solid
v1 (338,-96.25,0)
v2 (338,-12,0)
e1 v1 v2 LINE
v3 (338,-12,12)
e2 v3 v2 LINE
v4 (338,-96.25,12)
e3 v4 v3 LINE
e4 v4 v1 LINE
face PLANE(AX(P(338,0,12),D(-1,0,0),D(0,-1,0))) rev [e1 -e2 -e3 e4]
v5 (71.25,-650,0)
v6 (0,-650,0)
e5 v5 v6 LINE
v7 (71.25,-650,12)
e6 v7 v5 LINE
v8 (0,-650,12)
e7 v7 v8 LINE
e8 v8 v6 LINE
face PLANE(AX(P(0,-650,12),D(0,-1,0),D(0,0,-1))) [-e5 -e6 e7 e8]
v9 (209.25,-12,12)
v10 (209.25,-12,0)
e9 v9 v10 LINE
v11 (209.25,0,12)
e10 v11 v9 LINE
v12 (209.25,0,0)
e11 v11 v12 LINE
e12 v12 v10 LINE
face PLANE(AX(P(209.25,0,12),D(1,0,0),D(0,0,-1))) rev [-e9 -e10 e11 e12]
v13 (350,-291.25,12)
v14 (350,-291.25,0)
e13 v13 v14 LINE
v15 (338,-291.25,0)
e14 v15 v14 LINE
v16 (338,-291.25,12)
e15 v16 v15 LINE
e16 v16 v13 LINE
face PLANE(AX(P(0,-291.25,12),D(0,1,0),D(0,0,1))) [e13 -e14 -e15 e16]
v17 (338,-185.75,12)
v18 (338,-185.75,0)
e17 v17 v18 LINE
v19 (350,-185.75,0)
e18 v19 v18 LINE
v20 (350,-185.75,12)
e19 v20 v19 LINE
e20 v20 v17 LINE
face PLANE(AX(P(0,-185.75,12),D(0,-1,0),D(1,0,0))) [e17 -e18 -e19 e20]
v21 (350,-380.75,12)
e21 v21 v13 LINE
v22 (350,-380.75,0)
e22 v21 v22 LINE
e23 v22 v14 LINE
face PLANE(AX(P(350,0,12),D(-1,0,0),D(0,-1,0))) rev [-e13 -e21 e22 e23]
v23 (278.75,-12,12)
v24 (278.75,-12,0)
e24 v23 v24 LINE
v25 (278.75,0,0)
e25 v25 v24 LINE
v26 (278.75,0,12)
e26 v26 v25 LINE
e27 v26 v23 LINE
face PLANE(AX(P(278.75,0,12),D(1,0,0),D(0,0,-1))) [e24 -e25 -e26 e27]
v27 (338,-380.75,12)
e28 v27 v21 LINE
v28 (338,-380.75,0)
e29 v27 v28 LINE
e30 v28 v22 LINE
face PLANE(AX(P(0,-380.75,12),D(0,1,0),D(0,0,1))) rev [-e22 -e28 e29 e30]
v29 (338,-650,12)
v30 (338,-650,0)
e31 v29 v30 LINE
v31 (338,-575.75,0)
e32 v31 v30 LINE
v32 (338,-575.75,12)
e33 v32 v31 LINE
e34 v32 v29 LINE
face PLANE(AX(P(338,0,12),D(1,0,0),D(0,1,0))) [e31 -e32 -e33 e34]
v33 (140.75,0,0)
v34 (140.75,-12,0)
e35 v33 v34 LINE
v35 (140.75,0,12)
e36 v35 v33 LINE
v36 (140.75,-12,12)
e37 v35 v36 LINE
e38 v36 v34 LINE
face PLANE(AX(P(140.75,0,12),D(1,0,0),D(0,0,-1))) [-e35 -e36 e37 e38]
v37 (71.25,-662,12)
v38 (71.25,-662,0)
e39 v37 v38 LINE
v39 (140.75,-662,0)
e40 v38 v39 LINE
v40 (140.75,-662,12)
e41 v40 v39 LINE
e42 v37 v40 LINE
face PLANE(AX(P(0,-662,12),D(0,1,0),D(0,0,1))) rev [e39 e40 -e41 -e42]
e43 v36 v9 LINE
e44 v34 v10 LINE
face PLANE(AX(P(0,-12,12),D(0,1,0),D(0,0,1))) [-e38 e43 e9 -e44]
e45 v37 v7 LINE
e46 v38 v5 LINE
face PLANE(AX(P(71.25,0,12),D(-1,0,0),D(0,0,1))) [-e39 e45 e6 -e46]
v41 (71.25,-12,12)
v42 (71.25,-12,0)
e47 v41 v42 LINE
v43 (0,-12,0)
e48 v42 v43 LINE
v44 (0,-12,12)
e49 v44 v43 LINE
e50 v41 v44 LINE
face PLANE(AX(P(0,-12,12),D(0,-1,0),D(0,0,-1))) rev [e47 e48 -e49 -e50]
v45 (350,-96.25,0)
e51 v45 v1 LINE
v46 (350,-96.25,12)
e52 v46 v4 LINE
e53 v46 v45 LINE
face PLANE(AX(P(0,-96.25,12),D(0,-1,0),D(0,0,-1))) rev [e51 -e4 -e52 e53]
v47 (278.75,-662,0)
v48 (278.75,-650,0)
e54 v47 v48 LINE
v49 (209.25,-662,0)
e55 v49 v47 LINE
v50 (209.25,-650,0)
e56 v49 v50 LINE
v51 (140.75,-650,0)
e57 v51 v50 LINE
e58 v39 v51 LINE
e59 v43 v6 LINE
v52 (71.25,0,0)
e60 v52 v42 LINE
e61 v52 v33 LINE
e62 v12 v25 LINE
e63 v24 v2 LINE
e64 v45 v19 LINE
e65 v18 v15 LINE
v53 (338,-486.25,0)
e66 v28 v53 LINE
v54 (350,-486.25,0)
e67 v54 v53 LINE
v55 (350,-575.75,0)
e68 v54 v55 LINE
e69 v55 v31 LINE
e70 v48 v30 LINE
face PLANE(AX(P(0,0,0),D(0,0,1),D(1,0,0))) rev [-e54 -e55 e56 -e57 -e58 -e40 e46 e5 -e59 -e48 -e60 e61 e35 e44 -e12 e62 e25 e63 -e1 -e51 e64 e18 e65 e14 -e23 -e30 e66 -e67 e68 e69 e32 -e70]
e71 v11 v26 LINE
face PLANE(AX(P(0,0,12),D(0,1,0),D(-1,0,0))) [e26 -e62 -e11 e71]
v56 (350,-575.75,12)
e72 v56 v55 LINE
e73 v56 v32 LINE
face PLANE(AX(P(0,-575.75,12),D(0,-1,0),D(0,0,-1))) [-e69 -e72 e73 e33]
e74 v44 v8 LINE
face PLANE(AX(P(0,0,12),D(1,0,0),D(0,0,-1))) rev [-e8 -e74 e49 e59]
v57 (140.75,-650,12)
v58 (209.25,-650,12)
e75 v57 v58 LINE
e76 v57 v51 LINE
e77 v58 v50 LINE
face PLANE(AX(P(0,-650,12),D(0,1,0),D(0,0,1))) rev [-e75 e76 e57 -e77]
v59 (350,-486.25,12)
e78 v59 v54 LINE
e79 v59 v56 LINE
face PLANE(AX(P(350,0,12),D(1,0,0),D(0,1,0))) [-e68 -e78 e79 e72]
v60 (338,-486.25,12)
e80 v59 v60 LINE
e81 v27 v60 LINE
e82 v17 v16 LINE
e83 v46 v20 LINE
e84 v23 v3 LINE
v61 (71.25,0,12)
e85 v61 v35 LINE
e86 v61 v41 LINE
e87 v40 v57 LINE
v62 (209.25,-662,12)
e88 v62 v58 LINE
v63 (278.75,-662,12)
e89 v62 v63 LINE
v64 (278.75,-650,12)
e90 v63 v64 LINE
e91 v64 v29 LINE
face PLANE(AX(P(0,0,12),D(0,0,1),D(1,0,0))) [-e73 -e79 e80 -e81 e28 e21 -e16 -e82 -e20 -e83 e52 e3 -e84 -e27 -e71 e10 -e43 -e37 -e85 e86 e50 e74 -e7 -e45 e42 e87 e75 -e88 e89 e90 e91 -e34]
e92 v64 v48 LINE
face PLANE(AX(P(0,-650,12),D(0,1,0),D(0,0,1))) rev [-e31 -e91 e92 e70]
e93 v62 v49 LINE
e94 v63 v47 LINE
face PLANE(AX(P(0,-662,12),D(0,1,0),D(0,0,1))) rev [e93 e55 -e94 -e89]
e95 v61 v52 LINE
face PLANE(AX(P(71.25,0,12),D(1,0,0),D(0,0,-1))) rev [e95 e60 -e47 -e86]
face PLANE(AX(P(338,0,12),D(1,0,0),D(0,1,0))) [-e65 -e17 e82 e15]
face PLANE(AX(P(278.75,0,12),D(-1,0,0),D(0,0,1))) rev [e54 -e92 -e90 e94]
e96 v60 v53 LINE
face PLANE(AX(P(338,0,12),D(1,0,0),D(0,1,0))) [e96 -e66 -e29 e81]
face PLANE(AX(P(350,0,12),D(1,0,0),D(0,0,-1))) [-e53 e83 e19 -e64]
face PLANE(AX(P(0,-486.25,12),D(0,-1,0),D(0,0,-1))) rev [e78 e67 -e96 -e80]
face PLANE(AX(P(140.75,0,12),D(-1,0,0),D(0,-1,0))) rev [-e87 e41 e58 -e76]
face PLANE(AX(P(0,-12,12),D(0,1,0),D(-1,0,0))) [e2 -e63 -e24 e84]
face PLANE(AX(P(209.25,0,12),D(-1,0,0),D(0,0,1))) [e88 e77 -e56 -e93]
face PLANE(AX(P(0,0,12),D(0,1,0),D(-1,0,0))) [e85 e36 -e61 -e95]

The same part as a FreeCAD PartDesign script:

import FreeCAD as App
import Part
import Sketcher

V = App.Vector
Q = App.Units.Quantity

doc = App.newDocument("Part")
params = doc.addObject("Spreadsheet::Sheet", "Params")
for row, (alias, value) in enumerate([
    ("sketch1_width", "12 mm"),
    ("sketch1_height", "638 mm"),
    ("sketch1_width2", "69.5 mm"),
    ("sketch1_width3", "68.5 mm"),
    ("sketch1_height2", "89.5 mm"),
    ("pad1_length", "12 mm"),
], start=1):
    params.set(f"A{row}", alias)
    params.set(f"B{row}", "=" + value)
    params.setAlias(f"B{row}", alias)

body = doc.addObject("PartDesign::Body", "Body")

sketch1 = body.newObject("Sketcher::SketchObject", "Sketch")
sketch1.AttachmentSupport = (doc.getObject("XY_Plane"), [""])
sketch1.MapMode = "FlatFace"
sketch1.addGeometry(Part.LineSegment(V(141, 0, 0), V(71, 0, 0)), False)
sketch1.addGeometry(Part.LineSegment(V(71, 0, 0), V(71, -12, 0)), False)
sketch1.addGeometry(Part.LineSegment(V(71, -12, 0), V(0, -12, 0)), False)
sketch1.addGeometry(Part.LineSegment(V(0, -12, 0), V(0, -650, 0)), False)
sketch1.addGeometry(Part.LineSegment(V(0, -650, 0), V(71, -650, 0)), False)
sketch1.addGeometry(Part.LineSegment(V(71, -650, 0), V(71, -662, 0)), False)
sketch1.addGeometry(Part.LineSegment(V(71, -662, 0), V(141, -662, 0)), False)
sketch1.addGeometry(Part.LineSegment(V(141, -662, 0), V(141, -650, 0)), False)
sketch1.addGeometry(Part.LineSegment(V(141, -650, 0), V(209, -650, 0)), False)
sketch1.addGeometry(Part.LineSegment(V(209, -650, 0), V(209, -662, 0)), False)
sketch1.addGeometry(Part.LineSegment(V(209, -662, 0), V(279, -662, 0)), False)
sketch1.addGeometry(Part.LineSegment(V(279, -662, 0), V(279, -650, 0)), False)
sketch1.addGeometry(Part.LineSegment(V(279, -650, 0), V(338, -650, 0)), False)
sketch1.addGeometry(Part.LineSegment(V(338, -650, 0), V(338, -576, 0)), False)
sketch1.addGeometry(Part.LineSegment(V(338, -576, 0), V(350, -576, 0)), False)
sketch1.addGeometry(Part.LineSegment(V(350, -576, 0), V(350, -486, 0)), False)
sketch1.addGeometry(Part.LineSegment(V(350, -486, 0), V(338, -486, 0)), False)
sketch1.addGeometry(Part.LineSegment(V(338, -486, 0), V(338, -381, 0)), False)
sketch1.addGeometry(Part.LineSegment(V(338, -381, 0), V(350, -381, 0)), False)
sketch1.addGeometry(Part.LineSegment(V(350, -381, 0), V(350, -291, 0)), False)
sketch1.addGeometry(Part.LineSegment(V(350, -291, 0), V(338, -291, 0)), False)
sketch1.addGeometry(Part.LineSegment(V(338, -291, 0), V(338, -186, 0)), False)
sketch1.addGeometry(Part.LineSegment(V(338, -186, 0), V(350, -186, 0)), False)
sketch1.addGeometry(Part.LineSegment(V(350, -186, 0), V(350, -96, 0)), False)
sketch1.addGeometry(Part.LineSegment(V(350, -96, 0), V(338, -96, 0)), False)
sketch1.addGeometry(Part.LineSegment(V(338, -96, 0), V(338, -12, 0)), False)
sketch1.addGeometry(Part.LineSegment(V(338, -12, 0), V(279, -12, 0)), False)
sketch1.addGeometry(Part.LineSegment(V(279, -12, 0), V(279, 0, 0)), False)
sketch1.addGeometry(Part.LineSegment(V(279, 0, 0), V(209, 0, 0)), False)
sketch1.addGeometry(Part.LineSegment(V(209, 0, 0), V(209, -12, 0)), False)
sketch1.addGeometry(Part.LineSegment(V(209, -12, 0), V(141, -12, 0)), False)
sketch1.addGeometry(Part.LineSegment(V(141, -12, 0), V(141, 0, 0)), False)
sketch1.addConstraint(Sketcher.Constraint("Coincident", 0, 2, 1, 1))
sketch1.addConstraint(Sketcher.Constraint("Coincident", 1, 2, 2, 1))
sketch1.addConstraint(Sketcher.Constraint("Coincident", 2, 2, 3, 1))
sketch1.addConstraint(Sketcher.Constraint("Coincident", 3, 2, 4, 1))
sketch1.addConstraint(Sketcher.Constraint("Coincident", 4, 2, 5, 1))
sketch1.addConstraint(Sketcher.Constraint("Coincident", 5, 2, 6, 1))
sketch1.addConstraint(Sketcher.Constraint("Coincident", 6, 2, 7, 1))
sketch1.addConstraint(Sketcher.Constraint("Coincident", 7, 2, 8, 1))
sketch1.addConstraint(Sketcher.Constraint("Coincident", 8, 2, 9, 1))
sketch1.addConstraint(Sketcher.Constraint("Coincident", 9, 2, 10, 1))
sketch1.addConstraint(Sketcher.Constraint("Coincident", 10, 2, 11, 1))
sketch1.addConstraint(Sketcher.Constraint("Coincident", 11, 2, 12, 1))
sketch1.addConstraint(Sketcher.Constraint("Coincident", 12, 2, 13, 1))
sketch1.addConstraint(Sketcher.Constraint("Coincident", 13, 2, 14, 1))
sketch1.addConstraint(Sketcher.Constraint("Coincident", 14, 2, 15, 1))
sketch1.addConstraint(Sketcher.Constraint("Coincident", 15, 2, 16, 1))
sketch1.addConstraint(Sketcher.Constraint("Coincident", 16, 2, 17, 1))
sketch1.addConstraint(Sketcher.Constraint("Coincident", 17, 2, 18, 1))
sketch1.addConstraint(Sketcher.Constraint("Coincident", 18, 2, 19, 1))
sketch1.addConstraint(Sketcher.Constraint("Coincident", 19, 2, 20, 1))
sketch1.addConstraint(Sketcher.Constraint("Coincident", 20, 2, 21, 1))
sketch1.addConstraint(Sketcher.Constraint("Coincident", 21, 2, 22, 1))
sketch1.addConstraint(Sketcher.Constraint("Coincident", 22, 2, 23, 1))
sketch1.addConstraint(Sketcher.Constraint("Coincident", 23, 2, 24, 1))
sketch1.addConstraint(Sketcher.Constraint("Coincident", 24, 2, 25, 1))
sketch1.addConstraint(Sketcher.Constraint("Coincident", 25, 2, 26, 1))
sketch1.addConstraint(Sketcher.Constraint("Coincident", 26, 2, 27, 1))
sketch1.addConstraint(Sketcher.Constraint("Coincident", 27, 2, 28, 1))
sketch1.addConstraint(Sketcher.Constraint("Coincident", 28, 2, 29, 1))
sketch1.addConstraint(Sketcher.Constraint("Coincident", 29, 2, 30, 1))
sketch1.addConstraint(Sketcher.Constraint("Coincident", 30, 2, 31, 1))
sketch1.addConstraint(Sketcher.Constraint("Coincident", 31, 2, 0, 1))
sketch1.addConstraint(Sketcher.Constraint("Horizontal", 0))
sketch1.addConstraint(Sketcher.Constraint("Vertical", 1))
sketch1.addConstraint(Sketcher.Constraint("Horizontal", 2))
sketch1.addConstraint(Sketcher.Constraint("Vertical", 3))
sketch1.addConstraint(Sketcher.Constraint("Horizontal", 4))
sketch1.addConstraint(Sketcher.Constraint("Vertical", 5))
sketch1.addConstraint(Sketcher.Constraint("Horizontal", 6))
sketch1.addConstraint(Sketcher.Constraint("Vertical", 7))
sketch1.addConstraint(Sketcher.Constraint("Horizontal", 8))
sketch1.addConstraint(Sketcher.Constraint("Vertical", 9))
sketch1.addConstraint(Sketcher.Constraint("Horizontal", 10))
sketch1.addConstraint(Sketcher.Constraint("Vertical", 11))
sketch1.addConstraint(Sketcher.Constraint("Horizontal", 12))
sketch1.addConstraint(Sketcher.Constraint("Vertical", 13))
sketch1.addConstraint(Sketcher.Constraint("Horizontal", 14))
sketch1.addConstraint(Sketcher.Constraint("Vertical", 15))
sketch1.addConstraint(Sketcher.Constraint("Horizontal", 16))
sketch1.addConstraint(Sketcher.Constraint("Vertical", 17))
sketch1.addConstraint(Sketcher.Constraint("Horizontal", 18))
sketch1.addConstraint(Sketcher.Constraint("Vertical", 19))
sketch1.addConstraint(Sketcher.Constraint("Horizontal", 20))
sketch1.addConstraint(Sketcher.Constraint("Vertical", 21))
sketch1.addConstraint(Sketcher.Constraint("Horizontal", 22))
sketch1.addConstraint(Sketcher.Constraint("Vertical", 23))
sketch1.addConstraint(Sketcher.Constraint("Horizontal", 24))
sketch1.addConstraint(Sketcher.Constraint("Vertical", 25))
sketch1.addConstraint(Sketcher.Constraint("Horizontal", 26))
sketch1.addConstraint(Sketcher.Constraint("Vertical", 27))
sketch1.addConstraint(Sketcher.Constraint("Horizontal", 28))
sketch1.addConstraint(Sketcher.Constraint("Vertical", 29))
sketch1.addConstraint(Sketcher.Constraint("Horizontal", 30))
sketch1.addConstraint(Sketcher.Constraint("Vertical", 31))
sketch1.addConstraint(Sketcher.Constraint("PointOnObject", 0, 2, -1))
sketch1.addConstraint(Sketcher.Constraint("PointOnObject", 2, 2, -2))
sketch1.addConstraint(Sketcher.Constraint("PointOnObject", 27, 2, -1))
sketch1.addConstraint(Sketcher.Constraint("Horizontal", 4, 2, 7, 2))
sketch1.addConstraint(Sketcher.Constraint("Horizontal", 6, 2, 9, 2))
sketch1.addConstraint(Sketcher.Constraint("Horizontal", 8, 2, 11, 2))
sketch1.addConstraint(Sketcher.Constraint("Horizontal", 2, 2, 25, 2))
sketch1.addConstraint(Sketcher.Constraint("Horizontal", 26, 2, 29, 2))
sketch1.addConstraint(Sketcher.Constraint("Vertical", 1, 2, 4, 2))
sketch1.addConstraint(Sketcher.Constraint("Vertical", 13, 2, 16, 2))
sketch1.addConstraint(Sketcher.Constraint("Vertical", 15, 2, 18, 2))
sketch1.addConstraint(Sketcher.Constraint("Vertical", 17, 2, 20, 2))
sketch1.addConstraint(Sketcher.Constraint("Vertical", 19, 2, 22, 2))
sketch1.addConstraint(Sketcher.Constraint("Vertical", 21, 2, 24, 2))
sketch1.addConstraint(Sketcher.Constraint("Vertical", 11, 2, 26, 2))
sketch1.addConstraint(Sketcher.Constraint("Vertical", 9, 2, 28, 2))
sketch1.addConstraint(Sketcher.Constraint("Vertical", 7, 2, 30, 2))
sketch1.addConstraint(Sketcher.Constraint("Equal", 6, 10))
sketch1.addConstraint(Sketcher.Constraint("Equal", 24, 1))
sketch1.addConstraint(Sketcher.Constraint("Equal", 1, 5))
sketch1.addConstraint(Sketcher.Constraint("Equal", 15, 19))
sketch1.addConstraint(Sketcher.Constraint("Equal", 17, 21))
sketch1.addConstraint(Sketcher.Constraint("Equal", 19, 23))
sketch1.addConstraint(Sketcher.Constraint("DistanceX", 14, 1, 14, 2, Q("12 mm")))
sketch1.addConstraint(Sketcher.Constraint("DistanceY", 3, 2, 3, 1, Q("638 mm")))
sketch1.addConstraint(Sketcher.Constraint("DistanceX", 0, 2, 0, 1, Q("69.5 mm")))
sketch1.addConstraint(Sketcher.Constraint("DistanceX", 8, 1, 8, 2, Q("68.5 mm")))
sketch1.addConstraint(Sketcher.Constraint("DistanceY", 15, 1, 15, 2, Q("89.5 mm")))
sketch1.addConstraint(Sketcher.Constraint("DistanceY", 17, 1, 17, 2, Q("105.5 mm")))
sketch1.addConstraint(Sketcher.Constraint("DistanceX", -1, 1, 12, 2, Q("338 mm")))
sketch1.addConstraint(Sketcher.Constraint("DistanceX", 2, 2, 2, 1, Q("71.25 mm")))
sketch1.addConstraint(Sketcher.Constraint("DistanceY", 13, 1, 13, 2, Q("74.25 mm")))
sketch1.setExpression("Constraints[87]", "Params.sketch1_width")
sketch1.setExpression("Constraints[88]", "Params.sketch1_height")
sketch1.setExpression("Constraints[89]", "Params.sketch1_width2")
sketch1.setExpression("Constraints[90]", "Params.sketch1_width3")
sketch1.setExpression("Constraints[91]", "Params.sketch1_height2")
pad1 = body.newObject("PartDesign::Pad", "Pad")
pad1.Profile = sketch1
pad1.setExpression("Length", "Params.pad1_length")

doc.recompute()
